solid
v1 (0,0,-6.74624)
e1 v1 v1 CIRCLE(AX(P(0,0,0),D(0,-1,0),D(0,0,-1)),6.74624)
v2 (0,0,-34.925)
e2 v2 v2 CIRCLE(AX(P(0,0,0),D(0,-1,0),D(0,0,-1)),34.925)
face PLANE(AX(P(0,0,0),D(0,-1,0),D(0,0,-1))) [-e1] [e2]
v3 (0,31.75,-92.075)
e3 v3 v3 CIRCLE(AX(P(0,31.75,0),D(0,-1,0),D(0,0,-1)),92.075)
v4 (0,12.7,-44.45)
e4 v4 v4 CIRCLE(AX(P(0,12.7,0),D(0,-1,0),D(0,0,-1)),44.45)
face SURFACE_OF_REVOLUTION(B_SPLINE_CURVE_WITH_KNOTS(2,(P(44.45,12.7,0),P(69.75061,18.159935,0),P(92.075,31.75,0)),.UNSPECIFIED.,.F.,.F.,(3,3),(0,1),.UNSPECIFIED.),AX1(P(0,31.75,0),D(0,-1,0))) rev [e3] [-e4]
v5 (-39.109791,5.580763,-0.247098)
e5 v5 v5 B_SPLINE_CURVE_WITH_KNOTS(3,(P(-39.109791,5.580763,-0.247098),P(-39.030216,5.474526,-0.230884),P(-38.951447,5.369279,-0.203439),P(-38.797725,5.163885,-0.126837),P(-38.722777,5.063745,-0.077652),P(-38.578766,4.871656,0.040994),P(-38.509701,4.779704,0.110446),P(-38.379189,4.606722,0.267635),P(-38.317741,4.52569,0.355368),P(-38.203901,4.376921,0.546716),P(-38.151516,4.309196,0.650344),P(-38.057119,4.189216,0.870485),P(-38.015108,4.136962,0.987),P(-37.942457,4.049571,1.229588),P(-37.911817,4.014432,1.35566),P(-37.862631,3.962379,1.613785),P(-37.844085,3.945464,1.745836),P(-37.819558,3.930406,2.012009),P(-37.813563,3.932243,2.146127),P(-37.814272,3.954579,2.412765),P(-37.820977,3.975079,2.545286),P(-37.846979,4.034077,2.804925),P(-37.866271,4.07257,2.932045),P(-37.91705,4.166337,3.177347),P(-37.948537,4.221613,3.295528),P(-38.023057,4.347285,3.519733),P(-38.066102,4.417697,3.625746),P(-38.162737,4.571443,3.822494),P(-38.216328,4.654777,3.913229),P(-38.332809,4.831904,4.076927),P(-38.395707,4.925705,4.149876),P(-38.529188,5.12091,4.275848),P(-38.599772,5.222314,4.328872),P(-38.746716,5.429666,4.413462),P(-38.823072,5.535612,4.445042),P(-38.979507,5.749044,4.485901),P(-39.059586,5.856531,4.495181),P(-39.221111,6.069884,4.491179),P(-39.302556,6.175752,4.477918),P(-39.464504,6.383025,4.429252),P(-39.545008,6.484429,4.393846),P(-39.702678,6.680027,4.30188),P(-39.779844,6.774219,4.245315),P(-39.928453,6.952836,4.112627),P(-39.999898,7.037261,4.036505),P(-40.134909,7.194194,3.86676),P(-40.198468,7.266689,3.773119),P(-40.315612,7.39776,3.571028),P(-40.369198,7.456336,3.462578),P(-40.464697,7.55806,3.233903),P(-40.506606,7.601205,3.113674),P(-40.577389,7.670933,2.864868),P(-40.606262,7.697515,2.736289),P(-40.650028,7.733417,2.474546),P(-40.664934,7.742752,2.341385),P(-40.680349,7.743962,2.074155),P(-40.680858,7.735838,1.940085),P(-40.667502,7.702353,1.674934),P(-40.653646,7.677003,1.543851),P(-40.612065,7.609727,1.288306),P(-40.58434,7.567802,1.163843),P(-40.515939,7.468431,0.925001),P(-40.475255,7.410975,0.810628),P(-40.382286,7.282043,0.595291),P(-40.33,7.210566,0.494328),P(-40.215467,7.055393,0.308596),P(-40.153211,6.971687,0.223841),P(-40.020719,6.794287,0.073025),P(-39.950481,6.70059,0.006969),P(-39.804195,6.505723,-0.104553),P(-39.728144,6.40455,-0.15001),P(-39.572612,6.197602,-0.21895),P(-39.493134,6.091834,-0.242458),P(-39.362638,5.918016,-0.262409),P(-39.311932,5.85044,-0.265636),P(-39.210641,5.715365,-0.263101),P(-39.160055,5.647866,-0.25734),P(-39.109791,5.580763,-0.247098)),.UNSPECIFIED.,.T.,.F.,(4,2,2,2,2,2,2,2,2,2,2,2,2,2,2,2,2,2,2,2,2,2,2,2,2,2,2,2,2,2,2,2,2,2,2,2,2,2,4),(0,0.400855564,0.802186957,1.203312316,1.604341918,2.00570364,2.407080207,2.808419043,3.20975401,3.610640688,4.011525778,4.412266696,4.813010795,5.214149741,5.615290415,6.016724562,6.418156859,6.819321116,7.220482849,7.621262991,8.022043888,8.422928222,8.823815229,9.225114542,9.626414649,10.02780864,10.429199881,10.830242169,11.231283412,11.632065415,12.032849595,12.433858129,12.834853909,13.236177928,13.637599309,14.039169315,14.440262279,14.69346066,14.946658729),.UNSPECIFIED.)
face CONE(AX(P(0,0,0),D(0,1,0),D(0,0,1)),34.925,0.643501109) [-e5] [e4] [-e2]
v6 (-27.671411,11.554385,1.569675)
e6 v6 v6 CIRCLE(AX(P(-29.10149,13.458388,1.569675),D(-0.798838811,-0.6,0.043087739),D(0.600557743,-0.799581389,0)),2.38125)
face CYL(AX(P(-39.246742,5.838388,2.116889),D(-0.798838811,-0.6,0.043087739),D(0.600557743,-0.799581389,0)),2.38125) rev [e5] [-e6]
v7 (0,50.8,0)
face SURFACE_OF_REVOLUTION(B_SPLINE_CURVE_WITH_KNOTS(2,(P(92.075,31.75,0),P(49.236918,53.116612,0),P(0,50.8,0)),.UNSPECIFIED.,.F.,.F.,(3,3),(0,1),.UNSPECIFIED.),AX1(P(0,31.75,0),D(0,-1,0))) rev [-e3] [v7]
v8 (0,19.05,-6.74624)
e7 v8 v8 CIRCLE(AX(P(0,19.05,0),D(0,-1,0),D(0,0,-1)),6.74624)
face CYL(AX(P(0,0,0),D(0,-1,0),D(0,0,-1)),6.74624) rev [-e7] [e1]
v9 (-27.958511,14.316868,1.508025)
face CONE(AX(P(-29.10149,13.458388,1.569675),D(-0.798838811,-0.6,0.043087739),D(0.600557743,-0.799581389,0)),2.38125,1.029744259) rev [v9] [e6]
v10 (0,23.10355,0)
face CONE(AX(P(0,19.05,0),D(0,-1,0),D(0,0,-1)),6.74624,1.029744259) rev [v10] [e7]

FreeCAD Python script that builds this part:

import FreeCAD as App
import Part
import Sketcher
from FreeCAD import Vector
Q = App.Units.Quantity

doc = App.newDocument("Part")
body = doc.addObject("PartDesign::Body", "Body")

sketch1 = doc.addObject("Sketcher::SketchObject", "Sketch")
body.addObject(sketch1)
sketch1.AttachmentSupport = (doc.XY_Plane, [""])
sketch1.MapMode = "FlatFace"
sketch1.addGeometry([
    Part.LineSegment(Vector(0, 0, 0), Vector(34.925, 0, 0)),
    Part.LineSegment(Vector(34.925, 0, 0), Vector(44.45, 12.7, 0)),
    Part.BSplineCurve([Vector(44.45, 12.7, 0), Vector(69.75061, 18.159935, 0), Vector(92.075, 31.75, 0)], [3, 3], [0, 1], False, 2, [1, 1, 1], False),
    Part.BSplineCurve([Vector(92.075, 31.75, 0), Vector(49.236918, 53.116612, 0), Vector(0, 50.8, 0)], [3, 3], [0, 1], False, 2, [1, 1, 1], False),
    Part.LineSegment(Vector(0, 50.8, 0), Vector(0, 0, 0)),
], False)
sketch1.addConstraint([
    Sketcher.Constraint("Block", 2),
    Sketcher.Constraint("Block", 3),
    Sketcher.Constraint("Coincident", 0, 2, 1, 1),
    Sketcher.Constraint("Coincident", 1, 2, 2, 1),
    Sketcher.Constraint("Coincident", 3, 2, 4, 1),
    Sketcher.Constraint("Coincident", 4, 2, 0, 1),
    Sketcher.Constraint("Horizontal", 0),
    Sketcher.Constraint("Vertical", 4),
    Sketcher.Constraint("PointOnObject", 0, 2, -1),
    Sketcher.Constraint("DistanceX", 0, 1, 0, 2, Q("1.375 in")),
])
revolution = doc.addObject("PartDesign::Revolution", "Revolution")
body.addObject(revolution)
revolution.Profile = sketch1
revolution.ReferenceAxis = (sketch1, ["V_Axis"])
revolution.Angle = 360

sketch2 = doc.addObject("Sketcher::SketchObject", "Sketch001")
body.addObject(sketch2)
sketch2.AttachmentSupport = (doc.XZ_Plane, [""])
sketch2.MapMode = "FlatFace"
sketch2.addGeometry(Part.Circle(Vector(0, 0, 0), Vector(0, 0, 1), 6.74624), False)
sketch2.addConstraint([
    Sketcher.Constraint("Coincident", 0, 3, -1, 1),
    Sketcher.Constraint("Diameter", 0, Q("0.5312 in")),
])
doc.recompute()
hole = doc.addObject("PartDesign::Hole", "Hole")
body.addObject(hole)
hole.Profile = sketch2
hole.ThreadType = "None"
hole.Diameter = Q("0.5312 in")
hole.DepthType = "Dimension"
hole.Depth = Q("0.75 in")
hole.DrillPoint = "Angled"
hole.DrillPointAngle = 118

sketch3 = doc.addObject("Sketcher::SketchObject", "Sketch002")
body.addObject(sketch3)
sketch3.Placement = App.Placement(Vector(-22.319556, -16.764, 1.203871), App.Rotation(Vector(0.600557743, -0.799581389, 0), Vector(0.034452154, 0.025876675, 0.999071292), Vector(-0.798838811, -0.6, 0.043087739), "ZXY"))
sketch3.addGeometry(Part.Circle(Vector(-28.238202, 0.913867, 0), Vector(0, 0, 1), 2.38125), False)
sketch3.addConstraint([
    Sketcher.Constraint("Diameter", 0, Q("0.1875 in")),
    Sketcher.Constraint("DistanceX", 0, 3, -1, 1, 28.238202),
    Sketcher.Constraint("DistanceY", -1, 1, 0, 3, 0.913867),
])
doc.recompute()
hole2 = doc.addObject("PartDesign::Hole", "Hole001")
body.addObject(hole2)
hole2.Profile = sketch3
hole2.ThreadType = "None"
hole2.Diameter = Q("0.1875 in")
hole2.DepthType = "Dimension"
hole2.Depth = Q("0.5 in")
hole2.DrillPoint = "Angled"
hole2.DrillPointAngle = 118

doc.recompute()
